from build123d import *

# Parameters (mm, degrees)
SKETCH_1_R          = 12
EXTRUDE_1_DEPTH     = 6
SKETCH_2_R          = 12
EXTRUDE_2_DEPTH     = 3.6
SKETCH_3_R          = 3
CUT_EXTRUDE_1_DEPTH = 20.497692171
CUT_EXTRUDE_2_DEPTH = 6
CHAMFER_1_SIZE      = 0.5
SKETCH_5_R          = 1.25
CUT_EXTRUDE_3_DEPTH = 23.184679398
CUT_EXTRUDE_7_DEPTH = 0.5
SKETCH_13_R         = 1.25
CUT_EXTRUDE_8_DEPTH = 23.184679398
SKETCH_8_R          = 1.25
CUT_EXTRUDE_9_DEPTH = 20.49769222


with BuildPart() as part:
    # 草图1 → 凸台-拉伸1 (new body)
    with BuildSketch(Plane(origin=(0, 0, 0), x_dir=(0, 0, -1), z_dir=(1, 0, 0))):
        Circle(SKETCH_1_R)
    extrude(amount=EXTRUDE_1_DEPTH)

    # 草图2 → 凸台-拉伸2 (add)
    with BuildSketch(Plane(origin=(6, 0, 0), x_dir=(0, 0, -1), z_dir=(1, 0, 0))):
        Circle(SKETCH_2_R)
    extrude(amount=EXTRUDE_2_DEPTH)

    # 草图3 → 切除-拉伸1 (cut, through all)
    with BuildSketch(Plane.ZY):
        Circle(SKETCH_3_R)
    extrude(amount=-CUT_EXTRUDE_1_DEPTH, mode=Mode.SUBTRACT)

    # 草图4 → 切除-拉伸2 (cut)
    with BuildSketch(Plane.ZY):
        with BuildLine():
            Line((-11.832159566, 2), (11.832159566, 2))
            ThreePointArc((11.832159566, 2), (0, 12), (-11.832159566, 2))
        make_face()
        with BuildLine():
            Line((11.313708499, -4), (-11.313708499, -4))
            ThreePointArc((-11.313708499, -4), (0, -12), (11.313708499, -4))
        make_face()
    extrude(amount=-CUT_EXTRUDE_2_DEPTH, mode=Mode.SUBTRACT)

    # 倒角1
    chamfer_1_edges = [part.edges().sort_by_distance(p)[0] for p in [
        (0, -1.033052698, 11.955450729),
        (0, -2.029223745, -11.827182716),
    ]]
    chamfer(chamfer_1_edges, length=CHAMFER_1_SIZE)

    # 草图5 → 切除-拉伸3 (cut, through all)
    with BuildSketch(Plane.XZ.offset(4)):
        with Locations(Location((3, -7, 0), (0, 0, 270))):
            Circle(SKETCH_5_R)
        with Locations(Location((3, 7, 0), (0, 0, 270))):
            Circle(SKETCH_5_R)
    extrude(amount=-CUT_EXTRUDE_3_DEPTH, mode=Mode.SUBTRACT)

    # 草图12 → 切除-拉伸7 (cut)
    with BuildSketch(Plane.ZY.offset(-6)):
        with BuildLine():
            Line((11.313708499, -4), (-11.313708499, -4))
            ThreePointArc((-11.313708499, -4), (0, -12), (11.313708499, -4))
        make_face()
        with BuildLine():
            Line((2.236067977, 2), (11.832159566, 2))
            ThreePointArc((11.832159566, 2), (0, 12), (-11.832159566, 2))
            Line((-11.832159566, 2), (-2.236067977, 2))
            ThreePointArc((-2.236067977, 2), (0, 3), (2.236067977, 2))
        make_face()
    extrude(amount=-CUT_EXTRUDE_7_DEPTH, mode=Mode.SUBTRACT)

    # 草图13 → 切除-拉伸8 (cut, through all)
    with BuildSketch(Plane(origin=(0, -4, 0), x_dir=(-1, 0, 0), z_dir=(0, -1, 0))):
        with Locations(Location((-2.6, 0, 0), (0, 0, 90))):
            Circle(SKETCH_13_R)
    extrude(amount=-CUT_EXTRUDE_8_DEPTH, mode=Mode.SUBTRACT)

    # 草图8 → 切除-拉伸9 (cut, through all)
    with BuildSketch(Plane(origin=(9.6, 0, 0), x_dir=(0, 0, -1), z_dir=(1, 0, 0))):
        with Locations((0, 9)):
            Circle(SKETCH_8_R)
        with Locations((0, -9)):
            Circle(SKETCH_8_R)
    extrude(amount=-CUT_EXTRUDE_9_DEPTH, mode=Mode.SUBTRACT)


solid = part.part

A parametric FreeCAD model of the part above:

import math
import FreeCAD as App
import Part
import Sketcher

V = App.Vector
Q = App.Units.Quantity


def edges_at(feature, points):
    """Names of the edges that pass closest to the given points."""
    edges = feature.Shape.Edges
    near = lambda p: min(range(len(edges)), key=lambda i: edges[i].distToShape(Part.Vertex(*p))[0])
    return sorted({f"Edge{near(p) + 1}" for p in points})

doc = App.newDocument("Part")
body = doc.addObject("PartDesign::Body", "Body")

# Sketch on YZ plane
sketch1 = body.newObject("Sketcher::SketchObject", "Sketch")
sketch1.AttachmentSupport = (doc.getObject("YZ_Plane"), [""])
sketch1.MapMode = "FlatFace"
sketch1.addGeometry(Part.Circle(V(0, 0, 0), V(0, 0, 1), 12), False)
sketch1.addConstraint([
    Sketcher.Constraint("Coincident", 0, 3, -1, 1),
    Sketcher.Constraint("Diameter", 0, Q("24 mm")),
])
pad1 = body.newObject("PartDesign::Pad", "Pad")
pad1.Profile = sketch1
pad1.Length = 6

# Sketch on YZ plane
sketch2 = body.newObject("Sketcher::SketchObject", "Sketch001")
sketch2.AttachmentSupport = (doc.getObject("YZ_Plane"), [""])
sketch2.MapMode = "FlatFace"
sketch2.AttachmentOffset = App.Placement(V(0, 0, 6), App.Rotation())
sketch2.addGeometry(Part.Circle(V(0, 0, 0), V(0, 0, 1), 12), False)
sketch2.addConstraint([
    Sketcher.Constraint("Coincident", 0, 3, -1, 1),
    Sketcher.Constraint("Diameter", 0, Q("24 mm")),
])
pad2 = body.newObject("PartDesign::Pad", "Pad001")
pad2.Profile = sketch2
pad2.Length = 3.6

# Sketch on YZ plane
sketch3 = body.newObject("Sketcher::SketchObject", "Sketch002")
sketch3.AttachmentSupport = (doc.getObject("YZ_Plane"), [""])
sketch3.MapMode = "FlatFace"
sketch3.addGeometry(Part.Circle(V(0, 0, 0), V(0, 0, 1), 3), False)
sketch3.addConstraint([
    Sketcher.Constraint("Coincident", 0, 3, -1, 1),
    Sketcher.Constraint("Diameter", 0, Q("6 mm")),
])
pocket1 = body.newObject("PartDesign::Pocket", "Pocket")
pocket1.Profile = sketch3
pocket1.Type = "ThroughAll"
pocket1.Reversed = True

# Sketch on YZ plane
sketch4 = body.newObject("Sketcher::SketchObject", "Sketch003")
sketch4.AttachmentSupport = (doc.getObject("YZ_Plane"), [""])
sketch4.MapMode = "FlatFace"
sketch4.addGeometry([
    Part.LineSegment(V(2, -12, 0), V(2, 12, 0)),
    Part.ArcOfCircle(Part.Circle(V(0, 0, 0), V(0, 0, 1), 12), math.radians(-80), math.radians(80)),
    Part.LineSegment(V(-4, 11, 0), V(-4, -11, 0)),
    Part.ArcOfCircle(Part.Circle(V(0, 0, 0), V(0, 0, 1), 12), math.radians(109), math.radians(251)),
], False)
sketch4.addConstraint([
    Sketcher.Constraint("Coincident", 0, 1, 1, 1),
    Sketcher.Constraint("Coincident", 1, 2, 0, 2),
    Sketcher.Constraint("Coincident", 2, 1, 3, 1),
    Sketcher.Constraint("Coincident", 3, 2, 2, 2),
    Sketcher.Constraint("Vertical", 0),
    Sketcher.Constraint("Vertical", 2),
    Sketcher.Constraint("Coincident", 1, 3, -1, 1),
    Sketcher.Constraint("Coincident", 3, 3, -1, 1),
    Sketcher.Constraint("Equal", 1, 3),
    Sketcher.Constraint("Radius", 1, Q("12 mm")),
    Sketcher.Constraint("DistanceX", -1, 1, 0, 1, Q("2 mm")),
    Sketcher.Constraint("DistanceX", 2, 1, -1, 1, Q("4 mm")),
])
pocket2 = body.newObject("PartDesign::Pocket", "Pocket001")
pocket2.Profile = sketch4
pocket2.Length = 6
pocket2.Reversed = True
doc.recompute()

chamfer = body.newObject("PartDesign::Chamfer", "Chamfer")
chamfer.Base = (pocket2, edges_at(pocket2, [(0, -1.033, 11.955), (0, -2.029, -11.827)]))
chamfer.Size = 0.5

# Sketch on XZ plane
sketch5 = body.newObject("Sketcher::SketchObject", "Sketch004")
sketch5.AttachmentSupport = (doc.getObject("XZ_Plane"), [""])
sketch5.MapMode = "FlatFace"
sketch5.AttachmentOffset = App.Placement(V(0, 0, 4), App.Rotation())
sketch5.addGeometry([
    Part.Circle(V(3, -7, 0), V(0, 0, 1), 1.2),
    Part.Circle(V(3, 7, 0), V(0, 0, 1), 1.2),
], False)
sketch5.addConstraint([
    Sketcher.Constraint("Equal", 0, 1),
    Sketcher.Constraint("Symmetric", 0, 3, 1, 3, -1),
    Sketcher.Constraint("Diameter", 0, Q("2.5 mm")),
    Sketcher.Constraint("DistanceX", -1, 1, 0, 3, Q("3 mm")),
    Sketcher.Constraint("DistanceY", 0, 3, -1, 1, Q("7 mm")),
])
pocket3 = body.newObject("PartDesign::Pocket", "Pocket002")
pocket3.Profile = sketch5
pocket3.Type = "ThroughAll"

# Sketch on YZ plane
sketch6 = body.newObject("Sketcher::SketchObject", "Sketch005")
sketch6.AttachmentSupport = (doc.getObject("YZ_Plane"), [""])
sketch6.MapMode = "FlatFace"
sketch6.AttachmentOffset = App.Placement(V(0, 0, 6), App.Rotation())
sketch6.addGeometry([
    Part.LineSegment(V(-4, 11.3, 0), V(-4, -11.3, 0)),  # 0
    Part.ArcOfCircle(Part.Circle(V(0, 0, 0), V(0, 0, 1), 12), math.radians(109), math.radians(251)),  # 1
    Part.LineSegment(V(2, 2.2, 0), V(2, 11.8, 0)),  # 2
    Part.ArcOfCircle(Part.Circle(V(0, 0, 0), V(0, 0, 1), 12), math.radians(-80), math.radians(80)),  # 3
    Part.LineSegment(V(2, -11.8, 0), V(2, -2.2, 0)),  # 4
    Part.ArcOfCircle(Part.Circle(V(0, 0, 0), V(0, 0, 1), 3), math.radians(-48), math.radians(48)),  # 5
], False)
sketch6.addConstraint([
    Sketcher.Constraint("Coincident", 0, 1, 1, 1),
    Sketcher.Constraint("Coincident", 1, 2, 0, 2),
    Sketcher.Constraint("Coincident", 2, 2, 3, 2),
    Sketcher.Constraint("Coincident", 3, 1, 4, 1),
    Sketcher.Constraint("Coincident", 4, 2, 5, 1),
    Sketcher.Constraint("Coincident", 5, 2, 2, 1),
    Sketcher.Constraint("Vertical", 0),
    Sketcher.Constraint("Vertical", 2),
    Sketcher.Constraint("Vertical", 4),
    Sketcher.Constraint("Coincident", 1, 3, -1, 1),
    Sketcher.Constraint("Coincident", 3, 3, -1, 1),
    Sketcher.Constraint("Coincident", 5, 3, -1, 1),
    Sketcher.Constraint("Equal", 1, 3),
    Sketcher.Constraint("Vertical", 2, 2, 3, 1),
    Sketcher.Constraint("Radius", 1, Q("12 mm")),
    Sketcher.Constraint("Radius", 5, Q("3 mm")),
    Sketcher.Constraint("DistanceX", 0, 1, -1, 1, Q("4 mm")),
    Sketcher.Constraint("DistanceX", -1, 1, 2, 2, Q("2 mm")),
])
pocket4 = body.newObject("PartDesign::Pocket", "Pocket003")
pocket4.Profile = sketch6
pocket4.Length = 0.5
pocket4.Reversed = True

# Sketch on XZ plane
sketch7 = body.newObject("Sketcher::SketchObject", "Sketch006")
sketch7.AttachmentSupport = (doc.getObject("XZ_Plane"), [""])
sketch7.MapMode = "FlatFace"
sketch7.AttachmentOffset = App.Placement(V(0, 0, 4), App.Rotation())
sketch7.addGeometry(Part.Circle(V(2.6, 0, 0), V(0, 0, 1), 1.2), False)
sketch7.addConstraint([
    Sketcher.Constraint("PointOnObject", 0, 3, -1),
    Sketcher.Constraint("Diameter", 0, Q("2.5 mm")),
    Sketcher.Constraint("DistanceX", -1, 1, 0, 3, Q("2.6 mm")),
])
pocket5 = body.newObject("PartDesign::Pocket", "Pocket004")
pocket5.Profile = sketch7
pocket5.Type = "ThroughAll"

# Sketch on YZ plane
sketch8 = body.newObject("Sketcher::SketchObject", "Sketch007")
sketch8.AttachmentSupport = (doc.getObject("YZ_Plane"), [""])
sketch8.MapMode = "FlatFace"
sketch8.AttachmentOffset = App.Placement(V(0, 0, 9.6), App.Rotation())
sketch8.addGeometry([
    Part.Circle(V(9, 0, 0), V(0, 0, 1), 1.2),
    Part.Circle(V(-9, 0, 0), V(0, 0, 1), 1.2),
], False)
sketch8.addConstraint([
    Sketcher.Constraint("Equal", 0, 1),
    Sketcher.Constraint("Symmetric", 0, 3, 1, 3, -1, 1),
    Sketcher.Constraint("PointOnObject", 0, 3, -1),
    Sketcher.Constraint("Diameter", 0, Q("2.5 mm")),
    Sketcher.Constraint("DistanceX", -1, 1, 0, 3, Q("9 mm")),
])
pocket6 = body.newObject("PartDesign::Pocket", "Pocket005")
pocket6.Profile = sketch8
pocket6.Type = "ThroughAll"

doc.recompute()
